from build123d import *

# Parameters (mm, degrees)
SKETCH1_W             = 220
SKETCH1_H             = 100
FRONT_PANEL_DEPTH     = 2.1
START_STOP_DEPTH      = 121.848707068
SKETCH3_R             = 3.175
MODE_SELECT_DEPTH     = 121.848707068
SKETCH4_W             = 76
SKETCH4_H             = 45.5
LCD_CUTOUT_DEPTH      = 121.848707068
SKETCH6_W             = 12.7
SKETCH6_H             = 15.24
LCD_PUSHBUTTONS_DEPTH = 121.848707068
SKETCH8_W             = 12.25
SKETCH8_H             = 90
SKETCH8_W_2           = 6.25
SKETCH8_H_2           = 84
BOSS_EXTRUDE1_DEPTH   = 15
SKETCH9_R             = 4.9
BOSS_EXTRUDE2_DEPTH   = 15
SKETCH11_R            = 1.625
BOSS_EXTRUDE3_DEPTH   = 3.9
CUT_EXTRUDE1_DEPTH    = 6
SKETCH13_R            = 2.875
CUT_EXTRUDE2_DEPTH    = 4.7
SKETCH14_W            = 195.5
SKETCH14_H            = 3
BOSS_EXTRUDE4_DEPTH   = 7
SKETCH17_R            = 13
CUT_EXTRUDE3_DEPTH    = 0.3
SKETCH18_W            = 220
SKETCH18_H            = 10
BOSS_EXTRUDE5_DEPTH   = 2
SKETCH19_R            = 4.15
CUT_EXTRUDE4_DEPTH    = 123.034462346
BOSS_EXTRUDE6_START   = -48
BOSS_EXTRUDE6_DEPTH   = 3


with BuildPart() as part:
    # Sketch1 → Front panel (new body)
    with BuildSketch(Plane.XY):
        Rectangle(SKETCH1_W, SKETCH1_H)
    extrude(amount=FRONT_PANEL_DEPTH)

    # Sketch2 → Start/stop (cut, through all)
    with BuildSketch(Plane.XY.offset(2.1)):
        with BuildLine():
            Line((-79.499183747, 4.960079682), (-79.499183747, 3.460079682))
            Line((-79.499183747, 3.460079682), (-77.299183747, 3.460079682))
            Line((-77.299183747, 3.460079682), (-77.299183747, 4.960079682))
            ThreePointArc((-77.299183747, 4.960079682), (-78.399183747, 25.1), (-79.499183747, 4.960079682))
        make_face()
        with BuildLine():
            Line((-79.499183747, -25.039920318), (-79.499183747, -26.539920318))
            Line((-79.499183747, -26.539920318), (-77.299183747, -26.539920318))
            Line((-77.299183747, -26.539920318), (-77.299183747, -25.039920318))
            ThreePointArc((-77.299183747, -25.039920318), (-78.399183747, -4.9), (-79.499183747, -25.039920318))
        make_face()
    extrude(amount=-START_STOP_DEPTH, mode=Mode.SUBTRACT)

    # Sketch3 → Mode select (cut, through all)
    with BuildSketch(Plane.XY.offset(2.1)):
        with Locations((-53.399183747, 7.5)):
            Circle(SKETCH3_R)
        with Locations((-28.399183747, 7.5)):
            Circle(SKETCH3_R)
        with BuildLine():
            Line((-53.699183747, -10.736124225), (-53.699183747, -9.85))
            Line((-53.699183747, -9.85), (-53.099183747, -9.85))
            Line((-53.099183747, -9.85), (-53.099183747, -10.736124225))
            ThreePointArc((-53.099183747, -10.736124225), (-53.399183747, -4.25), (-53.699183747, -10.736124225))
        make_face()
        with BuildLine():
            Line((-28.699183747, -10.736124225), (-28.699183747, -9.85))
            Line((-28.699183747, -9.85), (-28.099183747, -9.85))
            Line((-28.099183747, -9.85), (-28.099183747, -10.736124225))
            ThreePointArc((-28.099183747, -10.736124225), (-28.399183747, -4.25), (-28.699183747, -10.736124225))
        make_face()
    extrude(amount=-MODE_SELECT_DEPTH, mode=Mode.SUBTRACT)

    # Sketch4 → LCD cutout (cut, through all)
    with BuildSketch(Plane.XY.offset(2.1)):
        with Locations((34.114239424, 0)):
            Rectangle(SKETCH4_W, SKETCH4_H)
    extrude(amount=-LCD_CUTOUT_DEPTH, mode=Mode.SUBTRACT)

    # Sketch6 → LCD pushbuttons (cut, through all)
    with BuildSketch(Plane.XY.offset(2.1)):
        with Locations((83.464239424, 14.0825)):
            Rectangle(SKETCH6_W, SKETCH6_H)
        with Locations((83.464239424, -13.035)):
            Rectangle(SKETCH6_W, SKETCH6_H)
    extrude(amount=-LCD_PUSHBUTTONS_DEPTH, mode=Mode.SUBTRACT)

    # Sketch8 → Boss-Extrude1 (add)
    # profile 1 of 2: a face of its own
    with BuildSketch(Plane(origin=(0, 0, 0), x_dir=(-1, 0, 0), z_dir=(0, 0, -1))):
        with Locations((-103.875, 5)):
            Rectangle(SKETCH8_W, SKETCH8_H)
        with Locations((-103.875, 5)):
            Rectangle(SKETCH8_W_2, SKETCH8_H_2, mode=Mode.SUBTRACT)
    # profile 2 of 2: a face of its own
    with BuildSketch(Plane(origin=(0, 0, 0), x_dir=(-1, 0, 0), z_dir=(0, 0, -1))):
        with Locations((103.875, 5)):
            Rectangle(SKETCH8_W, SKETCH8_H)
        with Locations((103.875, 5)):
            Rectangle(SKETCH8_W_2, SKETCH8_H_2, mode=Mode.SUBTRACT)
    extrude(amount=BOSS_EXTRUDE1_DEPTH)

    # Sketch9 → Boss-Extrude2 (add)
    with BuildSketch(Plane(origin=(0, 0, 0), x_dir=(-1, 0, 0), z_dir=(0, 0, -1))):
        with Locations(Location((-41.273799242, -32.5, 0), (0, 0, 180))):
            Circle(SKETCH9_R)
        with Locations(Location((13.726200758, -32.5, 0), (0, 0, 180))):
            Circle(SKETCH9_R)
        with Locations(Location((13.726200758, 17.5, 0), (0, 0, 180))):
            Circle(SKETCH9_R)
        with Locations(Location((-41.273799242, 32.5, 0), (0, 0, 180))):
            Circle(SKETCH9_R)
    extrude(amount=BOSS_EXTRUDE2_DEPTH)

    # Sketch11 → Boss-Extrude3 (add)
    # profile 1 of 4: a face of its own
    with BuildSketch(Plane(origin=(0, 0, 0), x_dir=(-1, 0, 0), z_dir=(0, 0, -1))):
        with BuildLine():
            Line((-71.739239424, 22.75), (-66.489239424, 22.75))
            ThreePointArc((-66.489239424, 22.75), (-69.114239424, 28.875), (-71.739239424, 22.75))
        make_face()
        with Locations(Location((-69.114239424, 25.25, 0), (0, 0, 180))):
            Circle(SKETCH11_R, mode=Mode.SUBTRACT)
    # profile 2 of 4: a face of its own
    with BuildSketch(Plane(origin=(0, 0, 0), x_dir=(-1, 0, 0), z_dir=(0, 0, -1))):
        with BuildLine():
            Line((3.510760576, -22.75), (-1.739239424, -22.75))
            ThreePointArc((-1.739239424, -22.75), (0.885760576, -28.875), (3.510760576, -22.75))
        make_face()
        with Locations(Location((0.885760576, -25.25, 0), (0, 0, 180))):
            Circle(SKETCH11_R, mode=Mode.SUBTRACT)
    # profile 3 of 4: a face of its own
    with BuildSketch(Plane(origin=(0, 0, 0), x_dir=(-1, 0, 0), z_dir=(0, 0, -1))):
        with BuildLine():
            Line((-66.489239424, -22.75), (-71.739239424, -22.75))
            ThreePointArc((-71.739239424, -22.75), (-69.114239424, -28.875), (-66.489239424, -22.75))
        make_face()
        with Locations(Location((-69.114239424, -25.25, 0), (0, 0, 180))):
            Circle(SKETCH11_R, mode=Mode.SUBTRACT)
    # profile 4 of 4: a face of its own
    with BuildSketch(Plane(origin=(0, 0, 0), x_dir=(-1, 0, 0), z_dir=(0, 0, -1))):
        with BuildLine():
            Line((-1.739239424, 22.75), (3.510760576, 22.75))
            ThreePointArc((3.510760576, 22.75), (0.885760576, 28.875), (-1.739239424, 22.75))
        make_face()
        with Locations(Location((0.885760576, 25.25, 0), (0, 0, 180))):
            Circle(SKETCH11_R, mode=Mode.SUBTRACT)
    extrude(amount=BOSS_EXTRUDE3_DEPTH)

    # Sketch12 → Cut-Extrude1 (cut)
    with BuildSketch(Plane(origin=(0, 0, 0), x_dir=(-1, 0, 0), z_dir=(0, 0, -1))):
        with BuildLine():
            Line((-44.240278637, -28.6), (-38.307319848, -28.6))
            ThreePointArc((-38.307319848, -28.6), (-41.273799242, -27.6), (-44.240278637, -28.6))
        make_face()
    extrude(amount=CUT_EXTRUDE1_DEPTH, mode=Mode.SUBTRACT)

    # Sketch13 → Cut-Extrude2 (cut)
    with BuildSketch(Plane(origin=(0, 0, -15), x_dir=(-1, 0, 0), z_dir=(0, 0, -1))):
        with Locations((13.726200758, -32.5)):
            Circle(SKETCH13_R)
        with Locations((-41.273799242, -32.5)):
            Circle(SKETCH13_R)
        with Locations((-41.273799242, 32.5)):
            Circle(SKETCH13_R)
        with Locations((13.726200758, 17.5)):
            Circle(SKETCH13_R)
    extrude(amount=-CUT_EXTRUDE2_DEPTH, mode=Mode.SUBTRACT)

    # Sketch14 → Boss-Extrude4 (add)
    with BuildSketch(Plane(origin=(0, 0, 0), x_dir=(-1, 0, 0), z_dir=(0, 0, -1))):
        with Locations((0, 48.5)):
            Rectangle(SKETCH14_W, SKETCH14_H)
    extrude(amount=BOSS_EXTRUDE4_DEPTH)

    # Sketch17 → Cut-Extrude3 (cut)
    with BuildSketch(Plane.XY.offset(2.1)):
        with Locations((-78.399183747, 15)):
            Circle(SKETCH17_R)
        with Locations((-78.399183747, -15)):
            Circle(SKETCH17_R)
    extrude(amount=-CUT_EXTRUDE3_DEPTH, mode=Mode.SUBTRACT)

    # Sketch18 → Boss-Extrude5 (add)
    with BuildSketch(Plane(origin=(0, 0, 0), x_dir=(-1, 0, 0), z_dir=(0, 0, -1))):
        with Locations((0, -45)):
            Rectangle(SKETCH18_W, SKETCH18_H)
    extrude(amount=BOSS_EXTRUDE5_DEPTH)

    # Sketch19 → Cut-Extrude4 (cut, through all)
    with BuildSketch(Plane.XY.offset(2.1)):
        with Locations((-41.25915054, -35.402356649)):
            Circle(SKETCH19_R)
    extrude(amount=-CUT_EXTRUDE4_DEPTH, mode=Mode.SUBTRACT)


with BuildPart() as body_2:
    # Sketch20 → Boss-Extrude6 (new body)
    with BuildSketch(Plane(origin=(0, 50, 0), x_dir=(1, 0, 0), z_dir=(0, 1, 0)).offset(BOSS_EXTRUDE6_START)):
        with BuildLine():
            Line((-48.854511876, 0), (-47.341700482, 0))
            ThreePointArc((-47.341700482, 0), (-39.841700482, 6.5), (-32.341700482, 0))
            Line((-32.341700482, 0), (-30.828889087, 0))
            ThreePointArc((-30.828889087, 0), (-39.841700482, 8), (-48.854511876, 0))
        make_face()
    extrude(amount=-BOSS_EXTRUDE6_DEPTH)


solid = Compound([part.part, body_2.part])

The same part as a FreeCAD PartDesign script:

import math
import FreeCAD as App
import Part
import Sketcher
from FreeCAD import Vector

doc = App.newDocument("Part")
body = doc.addObject("PartDesign::Body", "Body")

# Sketch on XY plane
sketch1 = body.newObject("Sketcher::SketchObject", "Sketch")
sketch1.AttachmentSupport = (doc.getObject("XY_Plane"), [""])
sketch1.MapMode = "FlatFace"
sketch1.addGeometry(Part.LineSegment(Vector(-110, 50, 0), Vector(-110, -50, 0)), False)
sketch1.addGeometry(Part.LineSegment(Vector(-110, -50, 0), Vector(110, -50, 0)), False)
sketch1.addGeometry(Part.LineSegment(Vector(110, -50, 0), Vector(110, 50, 0)), False)
sketch1.addGeometry(Part.LineSegment(Vector(110, 50, 0), Vector(-110, 50, 0)), False)
sketch1.addConstraint(Sketcher.Constraint("Coincident", 0, 2, 1, 1))
sketch1.addConstraint(Sketcher.Constraint("Coincident", 1, 2, 2, 1))
sketch1.addConstraint(Sketcher.Constraint("Coincident", 2, 2, 3, 1))
sketch1.addConstraint(Sketcher.Constraint("Coincident", 3, 2, 0, 1))
sketch1.addConstraint(Sketcher.Constraint("Vertical", 0))
sketch1.addConstraint(Sketcher.Constraint("Horizontal", 1))
sketch1.addConstraint(Sketcher.Constraint("Vertical", 2))
sketch1.addConstraint(Sketcher.Constraint("Horizontal", 3))
sketch1.addConstraint(Sketcher.Constraint("Symmetric", 0, 2, 2, 2, -1, 1))
sketch1.addConstraint(Sketcher.Constraint("DistanceX", 1, 1, 1, 2, 220.0))
sketch1.addConstraint(Sketcher.Constraint("DistanceY", 0, 2, 0, 1, 100.0))
pad1 = body.newObject("PartDesign::Pad", "Pad")
pad1.Profile = sketch1
pad1.Length = 2.1

# Sketch on XY plane
sketch2 = body.newObject("Sketcher::SketchObject", "Sketch001")
sketch2.AttachmentSupport = (doc.getObject("XY_Plane"), [""])
sketch2.MapMode = "FlatFace"
sketch2.AttachmentOffset = App.Placement(Vector(0, 0, 2.1), App.Rotation())
sketch2.addGeometry(Part.LineSegment(Vector(-79.499184, 4.96008, 0), Vector(-79.499184, 3.46008, 0)), False)
sketch2.addGeometry(Part.LineSegment(Vector(-79.499184, 3.46008, 0), Vector(-77.299184, 3.46008, 0)), False)
sketch2.addGeometry(Part.LineSegment(Vector(-77.299184, 3.46008, 0), Vector(-77.299184, 4.96008, 0)), False)
sketch2.addGeometry(Part.ArcOfCircle(Part.Circle(Vector(-78.399184, 15, 0), Vector(0, 0, 1), 10.1), math.radians(-83.747463), math.radians(263.747463)), False)
sketch2.addGeometry(Part.LineSegment(Vector(-79.499184, -25.03992, 0), Vector(-79.499184, -26.53992, 0)), False)
sketch2.addGeometry(Part.LineSegment(Vector(-79.499184, -26.53992, 0), Vector(-77.299184, -26.53992, 0)), False)
sketch2.addGeometry(Part.LineSegment(Vector(-77.299184, -26.53992, 0), Vector(-77.299184, -25.03992, 0)), False)
sketch2.addGeometry(Part.ArcOfCircle(Part.Circle(Vector(-78.399184, -15, 0), Vector(0, 0, 1), 10.1), math.radians(-83.747463), math.radians(263.747463)), False)
sketch2.addConstraint(Sketcher.Constraint("Coincident", 0, 2, 1, 1))
sketch2.addConstraint(Sketcher.Constraint("Coincident", 1, 2, 2, 1))
sketch2.addConstraint(Sketcher.Constraint("Coincident", 2, 2, 3, 1))
sketch2.addConstraint(Sketcher.Constraint("Coincident", 3, 2, 0, 1))
sketch2.addConstraint(Sketcher.Constraint("Coincident", 4, 2, 5, 1))
sketch2.addConstraint(Sketcher.Constraint("Coincident", 5, 2, 6, 1))
sketch2.addConstraint(Sketcher.Constraint("Coincident", 6, 2, 7, 1))
sketch2.addConstraint(Sketcher.Constraint("Coincident", 7, 2, 4, 1))
sketch2.addConstraint(Sketcher.Constraint("Vertical", 0))
sketch2.addConstraint(Sketcher.Constraint("Horizontal", 1))
sketch2.addConstraint(Sketcher.Constraint("Vertical", 2))
sketch2.addConstraint(Sketcher.Constraint("Vertical", 4))
sketch2.addConstraint(Sketcher.Constraint("Horizontal", 5))
sketch2.addConstraint(Sketcher.Constraint("Vertical", 6))
sketch2.addConstraint(Sketcher.Constraint("Equal", 3, 7))
sketch2.addConstraint(Sketcher.Constraint("Symmetric", 3, 3, 7, 3, -1))
sketch2.addConstraint(Sketcher.Constraint("Horizontal", 2, 2, 3, 2))
sketch2.addConstraint(Sketcher.Constraint("Horizontal", 6, 2, 7, 2))
sketch2.addConstraint(Sketcher.Constraint("Vertical", 3, 2, 4, 2))
sketch2.addConstraint(Sketcher.Constraint("Equal", 2, 4))
sketch2.addConstraint(Sketcher.Constraint("Radius", 3, 10.1))
sketch2.addConstraint(Sketcher.Constraint("DistanceX", 1, 1, 1, 2, 2.2))
sketch2.addConstraint(Sketcher.Constraint("DistanceY", 0, 2, 0, 1, 1.5))
sketch2.addConstraint(Sketcher.Constraint("DistanceY", -1, 1, 3, 3, 15.0))
sketch2.addConstraint(Sketcher.Constraint("DistanceX", 3, 3, -1, 1, 78.399184))
pocket1 = body.newObject("PartDesign::Pocket", "Pocket")
pocket1.Profile = sketch2
pocket1.Type = "ThroughAll"

# Sketch on XY plane
sketch3 = body.newObject("Sketcher::SketchObject", "Sketch002")
sketch3.AttachmentSupport = (doc.getObject("XY_Plane"), [""])
sketch3.MapMode = "FlatFace"
sketch3.AttachmentOffset = App.Placement(Vector(0, 0, 2.1), App.Rotation())
sketch3.addGeometry(Part.Circle(Vector(-53.399184, 7.5, 0), Vector(0, 0, 1), 3.175), False)
sketch3.addGeometry(Part.Circle(Vector(-28.399184, 7.5, 0), Vector(0, 0, 1), 3.175), False)
sketch3.addGeometry(Part.LineSegment(Vector(-53.699184, -10.736124, 0), Vector(-53.699184, -9.85, 0)), False)
sketch3.addGeometry(Part.LineSegment(Vector(-53.699184, -9.85, 0), Vector(-53.099184, -9.85, 0)), False)
sketch3.addGeometry(Part.LineSegment(Vector(-53.099184, -9.85, 0), Vector(-53.099184, -10.736124, 0)), False)
sketch3.addGeometry(Part.ArcOfCircle(Part.Circle(Vector(-53.399184, -7.5, 0), Vector(0, 0, 1), 3.25), math.radians(-84.703619), math.radians(264.703619)), False)
sketch3.addGeometry(Part.LineSegment(Vector(-28.699184, -10.736124, 0), Vector(-28.699184, -9.85, 0)), False)
sketch3.addGeometry(Part.LineSegment(Vector(-28.699184, -9.85, 0), Vector(-28.099184, -9.85, 0)), False)
sketch3.addGeometry(Part.LineSegment(Vector(-28.099184, -9.85, 0), Vector(-28.099184, -10.736124, 0)), False)
sketch3.addGeometry(Part.ArcOfCircle(Part.Circle(Vector(-28.399184, -7.5, 0), Vector(0, 0, 1), 3.25), math.radians(-84.703619), math.radians(264.703619)), False)
sketch3.addConstraint(Sketcher.Constraint("Coincident", 2, 2, 3, 1))
sketch3.addConstraint(Sketcher.Constraint("Coincident", 3, 2, 4, 1))
sketch3.addConstraint(Sketcher.Constraint("Coincident", 4, 2, 5, 1))
sketch3.addConstraint(Sketcher.Constraint("Coincident", 5, 2, 2, 1))
sketch3.addConstraint(Sketcher.Constraint("Coincident", 6, 2, 7, 1))
sketch3.addConstraint(Sketcher.Constraint("Coincident", 7, 2, 8, 1))
sketch3.addConstraint(Sketcher.Constraint("Coincident", 8, 2, 9, 1))
sketch3.addConstraint(Sketcher.Constraint("Coincident", 9, 2, 6, 1))
sketch3.addConstraint(Sketcher.Constraint("Vertical", 2))
sketch3.addConstraint(Sketcher.Constraint("Horizontal", 3))
sketch3.addConstraint(Sketcher.Constraint("Vertical", 4))
sketch3.addConstraint(Sketcher.Constraint("Vertical", 6))
sketch3.addConstraint(Sketcher.Constraint("Horizontal", 7))
sketch3.addConstraint(Sketcher.Constraint("Vertical", 8))
sketch3.addConstraint(Sketcher.Constraint("Equal", 0, 1))
sketch3.addConstraint(Sketcher.Constraint("Equal", 5, 9))
sketch3.addConstraint(Sketcher.Constraint("Symmetric", 0, 3, 5, 3, -1))
sketch3.addConstraint(Sketcher.Constraint("Symmetric", 1, 3, 9, 3, -1))
sketch3.addConstraint(Sketcher.Constraint("Horizontal", 0, 3, 1, 3))
sketch3.addConstraint(Sketcher.Constraint("Horizontal", 4, 2, 5, 2))
sketch3.addConstraint(Sketcher.Constraint("Horizontal", 3, 2, 6, 2))
sketch3.addConstraint(Sketcher.Constraint("Horizontal", 5, 2, 8, 2))
sketch3.addConstraint(Sketcher.Constraint("Horizontal", 8, 2, 9, 2))
sketch3.addConstraint(Sketcher.Constraint("Diameter", 0, 6.35))
sketch3.addConstraint(Sketcher.Constraint("Radius", 5, 3.25))
sketch3.addConstraint(Sketcher.Constraint("DistanceX", 3, 1, 3, 2, 0.6))
sketch3.addConstraint(Sketcher.Constraint("DistanceX", 0, 3, 1, 3, 25.0))
sketch3.addConstraint(Sketcher.Constraint("DistanceY", 5, 3, 0, 3, 15.0))
sketch3.addConstraint(Sketcher.Constraint("DistanceY", 2, 2, -1, 1, 9.85))
sketch3.addConstraint(Sketcher.Constraint("DistanceX", 0, 3, -1, 1, 53.399184))
pocket2 = body.newObject("PartDesign::Pocket", "Pocket001")
pocket2.Profile = sketch3
pocket2.Type = "ThroughAll"

# Sketch on XY plane
sketch4 = body.newObject("Sketcher::SketchObject", "Sketch003")
sketch4.AttachmentSupport = (doc.getObject("XY_Plane"), [""])
sketch4.MapMode = "FlatFace"
sketch4.AttachmentOffset = App.Placement(Vector(0, 0, 2.1), App.Rotation())
sketch4.addGeometry(Part.LineSegment(Vector(-3.885761, 22.75, 0), Vector(-3.885761, -22.75, 0)), False)
sketch4.addGeometry(Part.LineSegment(Vector(-3.885761, -22.75, 0), Vector(72.114239, -22.75, 0)), False)
sketch4.addGeometry(Part.LineSegment(Vector(72.114239, -22.75, 0), Vector(72.114239, 22.75, 0)), False)
sketch4.addGeometry(Part.LineSegment(Vector(72.114239, 22.75, 0), Vector(-3.885761, 22.75, 0)), False)
sketch4.addConstraint(Sketcher.Constraint("Coincident", 0, 2, 1, 1))
sketch4.addConstraint(Sketcher.Constraint("Coincident", 1, 2, 2, 1))
sketch4.addConstraint(Sketcher.Constraint("Coincident", 2, 2, 3, 1))
sketch4.addConstraint(Sketcher.Constraint("Coincident", 3, 2, 0, 1))
sketch4.addConstraint(Sketcher.Constraint("Vertical", 0))
sketch4.addConstraint(Sketcher.Constraint("Horizontal", 1))
sketch4.addConstraint(Sketcher.Constraint("Vertical", 2))
sketch4.addConstraint(Sketcher.Constraint("Horizontal", 3))
sketch4.addConstraint(Sketcher.Constraint("DistanceX", 1, 1, 1, 2, 76.0))
sketch4.addConstraint(Sketcher.Constraint("DistanceY", 0, 2, 0, 1, 45.5))
sketch4.addConstraint(Sketcher.Constraint("DistanceY", 0, 2, -1, 1, 22.75))
sketch4.addConstraint(Sketcher.Constraint("DistanceX", 0, 2, -1, 1, 3.885761))
pocket3 = body.newObject("PartDesign::Pocket", "Pocket002")
pocket3.Profile = sketch4
pocket3.Type = "ThroughAll"

# Sketch on XY plane
sketch5 = body.newObject("Sketcher::SketchObject", "Sketch004")
sketch5.AttachmentSupport = (doc.getObject("XY_Plane"), [""])
sketch5.MapMode = "FlatFace"
sketch5.AttachmentOffset = App.Placement(Vector(0, 0, 2.1), App.Rotation())
sketch5.addGeometry(Part.LineSegment(Vector(77.114239, 21.7025, 0), Vector(77.114239, 6.4625, 0)), False)
sketch5.addGeometry(Part.LineSegment(Vector(77.114239, 6.4625, 0), Vector(89.814239, 6.4625, 0)), False)
sketch5.addGeometry(Part.LineSegment(Vector(89.814239, 6.4625, 0), Vector(89.814239, 21.7025, 0)), False)
sketch5.addGeometry(Part.LineSegment(Vector(89.814239, 21.7025, 0), Vector(77.114239, 21.7025, 0)), False)
sketch5.addGeometry(Part.LineSegment(Vector(77.114239, -5.415, 0), Vector(77.114239, -20.655, 0)), False)
sketch5.addGeometry(Part.LineSegment(Vector(77.114239, -20.655, 0), Vector(89.814239, -20.655, 0)), False)
sketch5.addGeometry(Part.LineSegment(Vector(89.814239, -20.655, 0), Vector(89.814239, -5.415, 0)), False)
sketch5.addGeometry(Part.LineSegment(Vector(89.814239, -5.415, 0), Vector(77.114239, -5.415, 0)), False)
sketch5.addConstraint(Sketcher.Constraint("Coincident", 0, 2, 1, 1))
sketch5.addConstraint(Sketcher.Constraint("Coincident", 1, 2, 2, 1))
sketch5.addConstraint(Sketcher.Constraint("Coincident", 2, 2, 3, 1))
sketch5.addConstraint(Sketcher.Constraint("Coincident", 3, 2, 0, 1))
sketch5.addConstraint(Sketcher.Constraint("Coincident", 4, 2, 5, 1))
sketch5.addConstraint(Sketcher.Constraint("Coincident", 5, 2, 6, 1))
sketch5.addConstraint(Sketcher.Constraint("Coincident", 6, 2, 7, 1))
sketch5.addConstraint(Sketcher.Constraint("Coincident", 7, 2, 4, 1))
sketch5.addConstraint(Sketcher.Constraint("Vertical", 0))
sketch5.addConstraint(Sketcher.Constraint("Horizontal", 1))
sketch5.addConstraint(Sketcher.Constraint("Vertical", 2))
sketch5.addConstraint(Sketcher.Constraint("Horizontal", 3))
sketch5.addConstraint(Sketcher.Constraint("Vertical", 4))
sketch5.addConstraint(Sketcher.Constraint("Horizontal", 5))
sketch5.addConstraint(Sketcher.Constraint("Vertical", 6))
sketch5.addConstraint(Sketcher.Constraint("Horizontal", 7))
sketch5.addConstraint(Sketcher.Constraint("Vertical", 3, 2, 4, 2))
sketch5.addConstraint(Sketcher.Constraint("Vertical", 2, 2, 5, 2))
sketch5.addConstraint(Sketcher.Constraint("Equal", 2, 4))
sketch5.addConstraint(Sketcher.Constraint("DistanceX", 1, 1, 1, 2, 12.7))
sketch5.addConstraint(Sketcher.Constraint("DistanceY", 0, 2, 0, 1, 15.24))
sketch5.addConstraint(Sketcher.Constraint("DistanceY", 4, 2, -1, 1, 20.655))
sketch5.addConstraint(Sketcher.Constraint("DistanceY", -1, 1, 0, 2, 6.4625))
sketch5.addConstraint(Sketcher.Constraint("DistanceX", -1, 1, 0, 2, 77.114239))
pocket4 = body.newObject("PartDesign::Pocket", "Pocket003")
pocket4.Profile = sketch5
pocket4.Type = "ThroughAll"

# Sketch on XY plane
sketch6 = body.newObject("Sketcher::SketchObject", "Sketch005")
sketch6.AttachmentSupport = (doc.getObject("XY_Plane"), [""])
sketch6.MapMode = "FlatFace"
sketch6.addGeometry(Part.LineSegment(Vector(110, 50, 0), Vector(110, -40, 0)), False)
sketch6.addGeometry(Part.LineSegment(Vector(110, -40, 0), Vector(97.75, -40, 0)), False)
sketch6.addGeometry(Part.LineSegment(Vector(97.75, -40, 0), Vector(97.75, 50, 0)), False)
sketch6.addGeometry(Part.LineSegment(Vector(97.75, 50, 0), Vector(110, 50, 0)), False)
sketch6.addGeometry(Part.LineSegment(Vector(100.75, -37, 0), Vector(107, -37, 0)), False)
sketch6.addGeometry(Part.LineSegment(Vector(107, -37, 0), Vector(107, 47, 0)), False)
sketch6.addGeometry(Part.LineSegment(Vector(107, 47, 0), Vector(100.75, 47, 0)), False)
sketch6.addGeometry(Part.LineSegment(Vector(100.75, 47, 0), Vector(100.75, -37, 0)), False)
sketch6.addGeometry(Part.LineSegment(Vector(-97.75, 50, 0), Vector(-97.75, -40, 0)), False)
sketch6.addGeometry(Part.LineSegment(Vector(-97.75, -40, 0), Vector(-110, -40, 0)), False)
sketch6.addGeometry(Part.LineSegment(Vector(-110, -40, 0), Vector(-110, 50, 0)), False)
sketch6.addGeometry(Part.LineSegment(Vector(-110, 50, 0), Vector(-97.75, 50, 0)), False)
sketch6.addGeometry(Part.LineSegment(Vector(-107, -37, 0), Vector(-100.75, -37, 0)), False)
sketch6.addGeometry(Part.LineSegment(Vector(-100.75, -37, 0), Vector(-100.75, 47, 0)), False)
sketch6.addGeometry(Part.LineSegment(Vector(-100.75, 47, 0), Vector(-107, 47, 0)), False)
sketch6.addGeometry(Part.LineSegment(Vector(-107, 47, 0), Vector(-107, -37, 0)), False)
sketch6.addConstraint(Sketcher.Constraint("Coincident", 0, 2, 1, 1))
sketch6.addConstraint(Sketcher.Constraint("Coincident", 1, 2, 2, 1))
sketch6.addConstraint(Sketcher.Constraint("Coincident", 2, 2, 3, 1))
sketch6.addConstraint(Sketcher.Constraint("Coincident", 3, 2, 0, 1))
sketch6.addConstraint(Sketcher.Constraint("Coincident", 4, 2, 5, 1))
sketch6.addConstraint(Sketcher.Constraint("Coincident", 5, 2, 6, 1))
sketch6.addConstraint(Sketcher.Constraint("Coincident", 6, 2, 7, 1))
sketch6.addConstraint(Sketcher.Constraint("Coincident", 7, 2, 4, 1))
sketch6.addConstraint(Sketcher.Constraint("Coincident", 8, 2, 9, 1))
sketch6.addConstraint(Sketcher.Constraint("Coincident", 9, 2, 10, 1))
sketch6.addConstraint(Sketcher.Constraint("Coincident", 10, 2, 11, 1))
sketch6.addConstraint(Sketcher.Constraint("Coincident", 11, 2, 8, 1))
sketch6.addConstraint(Sketcher.Constraint("Coincident", 12, 2, 13, 1))
sketch6.addConstraint(Sketcher.Constraint("Coincident", 13, 2, 14, 1))
sketch6.addConstraint(Sketcher.Constraint("Coincident", 14, 2, 15, 1))
sketch6.addConstraint(Sketcher.Constraint("Coincident", 15, 2, 12, 1))
sketch6.addConstraint(Sketcher.Constraint("Vertical", 0))
sketch6.addConstraint(Sketcher.Constraint("Horizontal", 1))
sketch6.addConstraint(Sketcher.Constraint("Vertical", 2))
sketch6.addConstraint(Sketcher.Constraint("Horizontal", 3))
sketch6.addConstraint(Sketcher.Constraint("Horizontal", 4))
sketch6.addConstraint(Sketcher.Constraint("Vertical", 5))
sketch6.addConstraint(Sketcher.Constraint("Horizontal", 6))
sketch6.addConstraint(Sketcher.Constraint("Vertical", 7))
sketch6.addConstraint(Sketcher.Constraint("Vertical", 8))
sketch6.addConstraint(Sketcher.Constraint("Horizontal", 9))
sketch6.addConstraint(Sketcher.Constraint("Vertical", 10))
sketch6.addConstraint(Sketcher.Constraint("Horizontal", 11))
sketch6.addConstraint(Sketcher.Constraint("Horizontal", 12))
sketch6.addConstraint(Sketcher.Constraint("Vertical", 13))
sketch6.addConstraint(Sketcher.Constraint("Horizontal", 14))
sketch6.addConstraint(Sketcher.Constraint("Vertical", 15))
sketch6.addConstraint(Sketcher.Constraint("Symmetric", 1, 2, 8, 2, -2))
sketch6.addConstraint(Sketcher.Constraint("Symmetric", 3, 2, 10, 2, -2))
sketch6.addConstraint(Sketcher.Constraint("Symmetric", 7, 2, 12, 2, -2))
sketch6.addConstraint(Sketcher.Constraint("Symmetric", 5, 2, 14, 2, -2))
sketch6.addConstraint(Sketcher.Constraint("DistanceY", 0, 2, 0, 1, 90.0))
sketch6.addConstraint(Sketcher.Constraint("DistanceY", 5, 1, 5, 2, 84.0))
sketch6.addConstraint(Sketcher.Constraint("DistanceX", -1, 1, 0, 2, 110.0))
sketch6.addConstraint(Sketcher.Constraint("DistanceY", 0, 2, -1, 1, 40.0))
sketch6.addConstraint(Sketcher.Constraint("DistanceX", -1, 1, 4, 2, 107.0))
sketch6.addConstraint(Sketcher.Constraint("DistanceY", 4, 2, -1, 1, 37.0))
sketch6.addConstraint(Sketcher.Constraint("DistanceX", 2, 2, 6, 2, 3.0))
sketch6.addConstraint(Sketcher.Constraint("DistanceX", 1, 2, 1, 1, 12.25))
pad2 = body.newObject("PartDesign::Pad", "Pad001")
pad2.Profile = sketch6
pad2.Length = 15
pad2.Reversed = True

# Sketch on XY plane
sketch7 = body.newObject("Sketcher::SketchObject", "Sketch006")
sketch7.AttachmentSupport = (doc.getObject("XY_Plane"), [""])
sketch7.MapMode = "FlatFace"
sketch7.addGeometry(Part.Circle(Vector(41.273799, -32.5, 0), Vector(0, 0, 1), 4.9), False)
sketch7.addGeometry(Part.Circle(Vector(-13.726201, -32.5, 0), Vector(0, 0, 1), 4.9), False)
sketch7.addGeometry(Part.Circle(Vector(-13.726201, 17.5, 0), Vector(0, 0, 1), 4.9), False)
sketch7.addGeometry(Part.Circle(Vector(41.273799, 32.5, 0), Vector(0, 0, 1), 4.9), False)
sketch7.addConstraint(Sketcher.Constraint("Equal", 0, 1))
sketch7.addConstraint(Sketcher.Constraint("Equal", 1, 2))
sketch7.addConstraint(Sketcher.Constraint("Equal", 2, 3))
sketch7.addConstraint(Sketcher.Constraint("Symmetric", 0, 3, 3, 3, -1))
sketch7.addConstraint(Sketcher.Constraint("Horizontal", 0, 3, 1, 3))
sketch7.addConstraint(Sketcher.Constraint("Vertical", 1, 3, 2, 3))
sketch7.addConstraint(Sketcher.Constraint("Diameter", 0, 9.8))
sketch7.addConstraint(Sketcher.Constraint("DistanceX", 1, 3, 0, 3, 55.0))
sketch7.addConstraint(Sketcher.Constraint("DistanceY", 1, 3, 2, 3, 50.0))
sketch7.addConstraint(Sketcher.Constraint("DistanceY", 2, 3, 3, 3, 15.0))
sketch7.addConstraint(Sketcher.Constraint("DistanceX", -1, 1, 0, 3, 41.273799))
pad3 = body.newObject("PartDesign::Pad", "Pad002")
pad3.Profile = sketch7
pad3.Length = 15
pad3.Reversed = True

# Sketch on XY plane
sketch8 = body.newObject("Sketcher::SketchObject", "Sketch007")
sketch8.AttachmentSupport = (doc.getObject("XY_Plane"), [""])
sketch8.MapMode = "FlatFace"
sketch8.addGeometry(Part.LineSegment(Vector(71.739239, 22.75, 0), Vector(66.489239, 22.75, 0)), False)
sketch8.addGeometry(Part.ArcOfCircle(Part.Circle(Vector(69.114239, 25.25, 0), Vector(0, 0, 1), 3.625), math.radians(-43.602819), math.radians(223.602819)), False)
sketch8.addGeometry(Part.Circle(Vector(69.114239, 25.25, 0), Vector(0, 0, 1), 1.625), False)
sketch8.addGeometry(Part.LineSegment(Vector(-3.510761, -22.75, 0), Vector(1.739239, -22.75, 0)), False)
sketch8.addGeometry(Part.ArcOfCircle(Part.Circle(Vector(-0.885761, -25.25, 0), Vector(0, 0, 1), 3.625), math.radians(136.397181), math.radians(403.602819)), False)
sketch8.addGeometry(Part.Circle(Vector(-0.885761, -25.25, 0), Vector(0, 0, 1), 1.625), False)
sketch8.addGeometry(Part.LineSegment(Vector(66.489239, -22.75, 0), Vector(71.739239, -22.75, 0)), False)
sketch8.addGeometry(Part.ArcOfCircle(Part.Circle(Vector(69.114239, -25.25, 0), Vector(0, 0, 1), 3.625), math.radians(136.397181), math.radians(403.602819)), False)
sketch8.addGeometry(Part.Circle(Vector(69.114239, -25.25, 0), Vector(0, 0, 1), 1.625), False)
sketch8.addGeometry(Part.LineSegment(Vector(1.739239, 22.75, 0), Vector(-3.510761, 22.75, 0)), False)
sketch8.addGeometry(Part.ArcOfCircle(Part.Circle(Vector(-0.885761, 25.25, 0), Vector(0, 0, 1), 3.625), math.radians(-43.602819), math.radians(223.602819)), False)
sketch8.addGeometry(Part.Circle(Vector(-0.885761, 25.25, 0), Vector(0, 0, 1), 1.625), False)
sketch8.addConstraint(Sketcher.Constraint("Coincident", 0, 1, 1, 1))
sketch8.addConstraint(Sketcher.Constraint("Coincident", 1, 2, 0, 2))
sketch8.addConstraint(Sketcher.Constraint("Coincident", 3, 1, 4, 1))
sketch8.addConstraint(Sketcher.Constraint("Coincident", 4, 2, 3, 2))
sketch8.addConstraint(Sketcher.Constraint("Coincident", 6, 1, 7, 1))
sketch8.addConstraint(Sketcher.Constraint("Coincident", 7, 2, 6, 2))
sketch8.addConstraint(Sketcher.Constraint("Coincident", 9, 1, 10, 1))
sketch8.addConstraint(Sketcher.Constraint("Coincident", 10, 2, 9, 2))
sketch8.addConstraint(Sketcher.Constraint("Horizontal", 0))
sketch8.addConstraint(Sketcher.Constraint("Horizontal", 3))
sketch8.addConstraint(Sketcher.Constraint("Horizontal", 6))
sketch8.addConstraint(Sketcher.Constraint("Horizontal", 9))
sketch8.addConstraint(Sketcher.Constraint("Coincident", 2, 3, 1, 3))
sketch8.addConstraint(Sketcher.Constraint("Coincident", 5, 3, 4, 3))
sketch8.addConstraint(Sketcher.Constraint("Coincident", 8, 3, 7, 3))
sketch8.addConstraint(Sketcher.Constraint("Coincident", 11, 3, 10, 3))
sketch8.addConstraint(Sketcher.Constraint("Equal", 1, 4))
sketch8.addConstraint(Sketcher.Constraint("Equal", 2, 5))
sketch8.addConstraint(Sketcher.Constraint("Equal", 4, 7))
sketch8.addConstraint(Sketcher.Constraint("Equal", 5, 8))
sketch8.addConstraint(Sketcher.Constraint("Equal", 7, 10))
sketch8.addConstraint(Sketcher.Constraint("Equal", 8, 11))
sketch8.addConstraint(Sketcher.Constraint("Symmetric", 1, 3, 7, 3, -1))
sketch8.addConstraint(Sketcher.Constraint("Symmetric", 4, 3, 10, 3, -1))
sketch8.addConstraint(Sketcher.Constraint("Horizontal", 5, 3, 7, 3))
sketch8.addConstraint(Sketcher.Constraint("Horizontal", 4, 2, 6, 1))
sketch8.addConstraint(Sketcher.Constraint("Horizontal", 1, 2, 9, 1))
sketch8.addConstraint(Sketcher.Constraint("Vertical", 1, 2, 6, 1))
sketch8.addConstraint(Sketcher.Constraint("Diameter", 2, 3.25))
sketch8.addConstraint(Sketcher.Constraint("Radius", 1, 3.625))
sketch8.addConstraint(Sketcher.Constraint("DistanceX", 4, 3, 1, 3, 70.0))
sketch8.addConstraint(Sketcher.Constraint("DistanceY", 7, 3, 0, 1, 48.0))
sketch8.addConstraint(Sketcher.Constraint("DistanceX", 0, 2, 0, 1, 5.25))
sketch8.addConstraint(Sketcher.Constraint("DistanceX", -1, 1, 1, 3, 69.114239))
pad4 = body.newObject("PartDesign::Pad", "Pad003")
pad4.Profile = sketch8
pad4.Length = 3.9
pad4.Reversed = True

# Sketch on XY plane
sketch9 = body.newObject("Sketcher::SketchObject", "Sketch008")
sketch9.AttachmentSupport = (doc.getObject("XY_Plane"), [""])
sketch9.MapMode = "FlatFace"
sketch9.addGeometry(Part.LineSegment(Vector(44.240279, -28.6, 0), Vector(38.30732, -28.6, 0)), False)
sketch9.addGeometry(Part.ArcOfCircle(Part.Circle(Vector(41.273799, -32.5, 0), Vector(0, 0, 1), 4.9), math.radians(52.742084), math.radians(127.257916)), False)
sketch9.addConstraint(Sketcher.Constraint("Coincident", 0, 1, 1, 1))
sketch9.addConstraint(Sketcher.Constraint("Coincident", 1, 2, 0, 2))
sketch9.addConstraint(Sketcher.Constraint("Horizontal", 0))
sketch9.addConstraint(Sketcher.Constraint("Radius", 1, 4.9))
sketch9.addConstraint(Sketcher.Constraint("DistanceY", 1, 3, -1, 1, 32.5))
sketch9.addConstraint(Sketcher.Constraint("DistanceY", 0, 1, -1, 1, 28.6))
sketch9.addConstraint(Sketcher.Constraint("DistanceX", -1, 1, 1, 3, 41.273799))
pocket5 = body.newObject("PartDesign::Pocket", "Pocket004")
pocket5.Profile = sketch9
pocket5.Length = 6

# Sketch on XY plane
sketch10 = body.newObject("Sketcher::SketchObject", "Sketch009")
sketch10.AttachmentSupport = (doc.getObject("XY_Plane"), [""])
sketch10.MapMode = "FlatFace"
sketch10.AttachmentOffset = App.Placement(Vector(0, 0, -15), App.Rotation())
sketch10.addGeometry(Part.Circle(Vector(-13.726201, -32.5, 0), Vector(0, 0, 1), 2.875), False)
sketch10.addGeometry(Part.Circle(Vector(41.273799, -32.5, 0), Vector(0, 0, 1), 2.875), False)
sketch10.addGeometry(Part.Circle(Vector(41.273799, 32.5, 0), Vector(0, 0, 1), 2.875), False)
sketch10.addGeometry(Part.Circle(Vector(-13.726201, 17.5, 0), Vector(0, 0, 1), 2.875), False)
sketch10.addConstraint(Sketcher.Constraint("Equal", 0, 1))
sketch10.addConstraint(Sketcher.Constraint("Equal", 1, 2))
sketch10.addConstraint(Sketcher.Constraint("Equal", 2, 3))
sketch10.addConstraint(Sketcher.Constraint("Symmetric", 1, 3, 2, 3, -1))
sketch10.addConstraint(Sketcher.Constraint("Horizontal", 0, 3, 1, 3))
sketch10.addConstraint(Sketcher.Constraint("Vertical", 0, 3, 3, 3))
sketch10.addConstraint(Sketcher.Constraint("Diameter", 0, 5.75))
sketch10.addConstraint(Sketcher.Constraint("DistanceX", 0, 3, 1, 3, 55.0))
sketch10.addConstraint(Sketcher.Constraint("DistanceY", 1, 3, 2, 3, 65.0))
sketch10.addConstraint(Sketcher.Constraint("DistanceY", 0, 3, 3, 3, 50.0))
sketch10.addConstraint(Sketcher.Constraint("DistanceX", 0, 3, -1, 1, 13.726201))
pocket6 = body.newObject("PartDesign::Pocket", "Pocket005")
pocket6.Profile = sketch10
pocket6.Length = 4.7
pocket6.Reversed = True

# Sketch on XY plane
sketch11 = body.newObject("Sketcher::SketchObject", "Sketch010")
sketch11.AttachmentSupport = (doc.getObject("XY_Plane"), [""])
sketch11.MapMode = "FlatFace"
sketch11.addGeometry(Part.LineSegment(Vector(97.75, 50, 0), Vector(97.75, 47, 0)), False)
sketch11.addGeometry(Part.LineSegment(Vector(97.75, 47, 0), Vector(-97.75, 47, 0)), False)
sketch11.addGeometry(Part.LineSegment(Vector(-97.75, 47, 0), Vector(-97.75, 50, 0)), False)
sketch11.addGeometry(Part.LineSegment(Vector(-97.75, 50, 0), Vector(97.75, 50, 0)), False)
sketch11.addConstraint(Sketcher.Constraint("Coincident", 0, 2, 1, 1))
sketch11.addConstraint(Sketcher.Constraint("Coincident", 1, 2, 2, 1))
sketch11.addConstraint(Sketcher.Constraint("Coincident", 2, 2, 3, 1))
sketch11.addConstraint(Sketcher.Constraint("Coincident", 3, 2, 0, 1))
sketch11.addConstraint(Sketcher.Constraint("Vertical", 0))
sketch11.addConstraint(Sketcher.Constraint("Horizontal", 1))
sketch11.addConstraint(Sketcher.Constraint("Vertical", 2))
sketch11.addConstraint(Sketcher.Constraint("Horizontal", 3))
sketch11.addConstraint(Sketcher.Constraint("DistanceY", 0, 2, 0, 1, 3.0))
sketch11.addConstraint(Sketcher.Constraint("DistanceX", 1, 2, 1, 1, 195.5))
sketch11.addConstraint(Sketcher.Constraint("DistanceY", -1, 1, 0, 2, 47.0))
sketch11.addConstraint(Sketcher.Constraint("DistanceX", -1, 1, 0, 2, 97.75))
pad5 = body.newObject("PartDesign::Pad", "Pad004")
pad5.Profile = sketch11
pad5.Length = 7
pad5.Reversed = True

# Sketch on XY plane
sketch12 = body.newObject("Sketcher::SketchObject", "Sketch011")
sketch12.AttachmentSupport = (doc.getObject("XY_Plane"), [""])
sketch12.MapMode = "FlatFace"
sketch12.AttachmentOffset = App.Placement(Vector(0, 0, 2.1), App.Rotation())
sketch12.addGeometry(Part.Circle(Vector(-78.399184, 15, 0), Vector(0, 0, 1), 13), False)
sketch12.addGeometry(Part.Circle(Vector(-78.399184, -15, 0), Vector(0, 0, 1), 13), False)
sketch12.addConstraint(Sketcher.Constraint("Equal", 0, 1))
sketch12.addConstraint(Sketcher.Constraint("Symmetric", 0, 3, 1, 3, -1))
sketch12.addConstraint(Sketcher.Constraint("Diameter", 0, 26.0))
sketch12.addConstraint(Sketcher.Constraint("DistanceY", -1, 1, 0, 3, 15.0))
sketch12.addConstraint(Sketcher.Constraint("DistanceX", 0, 3, -1, 1, 78.399184))
pocket7 = body.newObject("PartDesign::Pocket", "Pocket006")
pocket7.Profile = sketch12
pocket7.Length = 0.3

# Sketch on XY plane
sketch13 = body.newObject("Sketcher::SketchObject", "Sketch012")
sketch13.AttachmentSupport = (doc.getObject("XY_Plane"), [""])
sketch13.MapMode = "FlatFace"
sketch13.addGeometry(Part.LineSegment(Vector(110, -40, 0), Vector(110, -50, 0)), False)
sketch13.addGeometry(Part.LineSegment(Vector(110, -50, 0), Vector(-110, -50, 0)), False)
sketch13.addGeometry(Part.LineSegment(Vector(-110, -50, 0), Vector(-110, -40, 0)), False)
sketch13.addGeometry(Part.LineSegment(Vector(-110, -40, 0), Vector(110, -40, 0)), False)
sketch13.addConstraint(Sketcher.Constraint("Coincident", 0, 2, 1, 1))
sketch13.addConstraint(Sketcher.Constraint("Coincident", 1, 2, 2, 1))
sketch13.addConstraint(Sketcher.Constraint("Coincident", 2, 2, 3, 1))
sketch13.addConstraint(Sketcher.Constraint("Coincident", 3, 2, 0, 1))
sketch13.addConstraint(Sketcher.Constraint("Vertical", 0))
sketch13.addConstraint(Sketcher.Constraint("Horizontal", 1))
sketch13.addConstraint(Sketcher.Constraint("Vertical", 2))
sketch13.addConstraint(Sketcher.Constraint("Horizontal", 3))
sketch13.addConstraint(Sketcher.Constraint("DistanceX", 1, 2, 1, 1, 220.0))
sketch13.addConstraint(Sketcher.Constraint("DistanceY", 0, 2, 0, 1, 10.0))
sketch13.addConstraint(Sketcher.Constraint("DistanceX", -1, 1, 0, 2, 110.0))
sketch13.addConstraint(Sketcher.Constraint("DistanceY", 0, 2, -1, 1, 50.0))
pad6 = body.newObject("PartDesign::Pad", "Pad005")
pad6.Profile = sketch13
pad6.Length = 2
pad6.Reversed = True

# Sketch on XY plane
sketch14 = body.newObject("Sketcher::SketchObject", "Sketch013")
sketch14.AttachmentSupport = (doc.getObject("XY_Plane"), [""])
sketch14.MapMode = "FlatFace"
sketch14.AttachmentOffset = App.Placement(Vector(0, 0, 2.1), App.Rotation())
sketch14.addGeometry(Part.Circle(Vector(-41.259151, -35.402357, 0), Vector(0, 0, 1), 4.15), False)
sketch14.addConstraint(Sketcher.Constraint("Diameter", 0, 8.3))
sketch14.addConstraint(Sketcher.Constraint("DistanceX", 0, 3, -1, 1, 41.259151))
sketch14.addConstraint(Sketcher.Constraint("DistanceY", 0, 3, -1, 1, 35.402357))
pocket8 = body.newObject("PartDesign::Pocket", "Pocket007")
pocket8.Profile = sketch14
pocket8.Type = "ThroughAll"
body2 = doc.addObject("PartDesign::Body", "Body001")

# Sketch on XZ plane
sketch15 = body2.newObject("Sketcher::SketchObject", "Sketch014")
sketch15.AttachmentSupport = (doc.getObject("XZ_Plane001"), [""])
sketch15.MapMode = "FlatFace"
sketch15.AttachmentOffset = App.Placement(Vector(0, 0, -2), App.Rotation())
sketch15.addGeometry(Part.LineSegment(Vector(-48.854512, 0, 0), Vector(-47.3417, 0, 0)), False)
sketch15.addGeometry(Part.ArcOfCircle(Part.Circle(Vector(-39.8417, 1.076923, 0), Vector(0, 0, 1), 7.576923), math.radians(-171.828766), math.radians(-8.171234)), False)
sketch15.addGeometry(Part.LineSegment(Vector(-32.3417, 0, 0), Vector(-30.828889, 0, 0)), False)
sketch15.addGeometry(Part.ArcOfCircle(Part.Circle(Vector(-39.8417, 1.076923, 0), Vector(0, 0, 1), 9.076923), math.radians(-173.186146), math.radians(-6.813854)), False)
sketch15.addConstraint(Sketcher.Constraint("Coincident", 0, 2, 1, 1))
sketch15.addConstraint(Sketcher.Constraint("Coincident", 1, 2, 2, 1))
sketch15.addConstraint(Sketcher.Constraint("Coincident", 2, 2, 3, 2))
sketch15.addConstraint(Sketcher.Constraint("Coincident", 3, 1, 0, 1))
sketch15.addConstraint(Sketcher.Constraint("Horizontal", 0))
sketch15.addConstraint(Sketcher.Constraint("Horizontal", 2))
sketch15.addConstraint(Sketcher.Constraint("Coincident", 3, 3, 1, 3))
sketch15.addConstraint(Sketcher.Constraint("PointOnObject", 0, 2, -1))
sketch15.addConstraint(Sketcher.Constraint("PointOnObject", 1, 2, -1))
sketch15.addConstraint(Sketcher.Constraint("DistanceX", 0, 2, 1, 2, 15.0))
sketch15.addConstraint(Sketcher.Constraint("Radius", 1, 7.576923))
sketch15.addConstraint(Sketcher.Constraint("Radius", 3, 9.076923))
sketch15.addConstraint(Sketcher.Constraint("DistanceX", 1, 3, -1, 1, 39.8417))
pad7 = body2.newObject("PartDesign::Pad", "Pad006")
pad7.Profile = sketch15
pad7.Length = 3

doc.recompute()
